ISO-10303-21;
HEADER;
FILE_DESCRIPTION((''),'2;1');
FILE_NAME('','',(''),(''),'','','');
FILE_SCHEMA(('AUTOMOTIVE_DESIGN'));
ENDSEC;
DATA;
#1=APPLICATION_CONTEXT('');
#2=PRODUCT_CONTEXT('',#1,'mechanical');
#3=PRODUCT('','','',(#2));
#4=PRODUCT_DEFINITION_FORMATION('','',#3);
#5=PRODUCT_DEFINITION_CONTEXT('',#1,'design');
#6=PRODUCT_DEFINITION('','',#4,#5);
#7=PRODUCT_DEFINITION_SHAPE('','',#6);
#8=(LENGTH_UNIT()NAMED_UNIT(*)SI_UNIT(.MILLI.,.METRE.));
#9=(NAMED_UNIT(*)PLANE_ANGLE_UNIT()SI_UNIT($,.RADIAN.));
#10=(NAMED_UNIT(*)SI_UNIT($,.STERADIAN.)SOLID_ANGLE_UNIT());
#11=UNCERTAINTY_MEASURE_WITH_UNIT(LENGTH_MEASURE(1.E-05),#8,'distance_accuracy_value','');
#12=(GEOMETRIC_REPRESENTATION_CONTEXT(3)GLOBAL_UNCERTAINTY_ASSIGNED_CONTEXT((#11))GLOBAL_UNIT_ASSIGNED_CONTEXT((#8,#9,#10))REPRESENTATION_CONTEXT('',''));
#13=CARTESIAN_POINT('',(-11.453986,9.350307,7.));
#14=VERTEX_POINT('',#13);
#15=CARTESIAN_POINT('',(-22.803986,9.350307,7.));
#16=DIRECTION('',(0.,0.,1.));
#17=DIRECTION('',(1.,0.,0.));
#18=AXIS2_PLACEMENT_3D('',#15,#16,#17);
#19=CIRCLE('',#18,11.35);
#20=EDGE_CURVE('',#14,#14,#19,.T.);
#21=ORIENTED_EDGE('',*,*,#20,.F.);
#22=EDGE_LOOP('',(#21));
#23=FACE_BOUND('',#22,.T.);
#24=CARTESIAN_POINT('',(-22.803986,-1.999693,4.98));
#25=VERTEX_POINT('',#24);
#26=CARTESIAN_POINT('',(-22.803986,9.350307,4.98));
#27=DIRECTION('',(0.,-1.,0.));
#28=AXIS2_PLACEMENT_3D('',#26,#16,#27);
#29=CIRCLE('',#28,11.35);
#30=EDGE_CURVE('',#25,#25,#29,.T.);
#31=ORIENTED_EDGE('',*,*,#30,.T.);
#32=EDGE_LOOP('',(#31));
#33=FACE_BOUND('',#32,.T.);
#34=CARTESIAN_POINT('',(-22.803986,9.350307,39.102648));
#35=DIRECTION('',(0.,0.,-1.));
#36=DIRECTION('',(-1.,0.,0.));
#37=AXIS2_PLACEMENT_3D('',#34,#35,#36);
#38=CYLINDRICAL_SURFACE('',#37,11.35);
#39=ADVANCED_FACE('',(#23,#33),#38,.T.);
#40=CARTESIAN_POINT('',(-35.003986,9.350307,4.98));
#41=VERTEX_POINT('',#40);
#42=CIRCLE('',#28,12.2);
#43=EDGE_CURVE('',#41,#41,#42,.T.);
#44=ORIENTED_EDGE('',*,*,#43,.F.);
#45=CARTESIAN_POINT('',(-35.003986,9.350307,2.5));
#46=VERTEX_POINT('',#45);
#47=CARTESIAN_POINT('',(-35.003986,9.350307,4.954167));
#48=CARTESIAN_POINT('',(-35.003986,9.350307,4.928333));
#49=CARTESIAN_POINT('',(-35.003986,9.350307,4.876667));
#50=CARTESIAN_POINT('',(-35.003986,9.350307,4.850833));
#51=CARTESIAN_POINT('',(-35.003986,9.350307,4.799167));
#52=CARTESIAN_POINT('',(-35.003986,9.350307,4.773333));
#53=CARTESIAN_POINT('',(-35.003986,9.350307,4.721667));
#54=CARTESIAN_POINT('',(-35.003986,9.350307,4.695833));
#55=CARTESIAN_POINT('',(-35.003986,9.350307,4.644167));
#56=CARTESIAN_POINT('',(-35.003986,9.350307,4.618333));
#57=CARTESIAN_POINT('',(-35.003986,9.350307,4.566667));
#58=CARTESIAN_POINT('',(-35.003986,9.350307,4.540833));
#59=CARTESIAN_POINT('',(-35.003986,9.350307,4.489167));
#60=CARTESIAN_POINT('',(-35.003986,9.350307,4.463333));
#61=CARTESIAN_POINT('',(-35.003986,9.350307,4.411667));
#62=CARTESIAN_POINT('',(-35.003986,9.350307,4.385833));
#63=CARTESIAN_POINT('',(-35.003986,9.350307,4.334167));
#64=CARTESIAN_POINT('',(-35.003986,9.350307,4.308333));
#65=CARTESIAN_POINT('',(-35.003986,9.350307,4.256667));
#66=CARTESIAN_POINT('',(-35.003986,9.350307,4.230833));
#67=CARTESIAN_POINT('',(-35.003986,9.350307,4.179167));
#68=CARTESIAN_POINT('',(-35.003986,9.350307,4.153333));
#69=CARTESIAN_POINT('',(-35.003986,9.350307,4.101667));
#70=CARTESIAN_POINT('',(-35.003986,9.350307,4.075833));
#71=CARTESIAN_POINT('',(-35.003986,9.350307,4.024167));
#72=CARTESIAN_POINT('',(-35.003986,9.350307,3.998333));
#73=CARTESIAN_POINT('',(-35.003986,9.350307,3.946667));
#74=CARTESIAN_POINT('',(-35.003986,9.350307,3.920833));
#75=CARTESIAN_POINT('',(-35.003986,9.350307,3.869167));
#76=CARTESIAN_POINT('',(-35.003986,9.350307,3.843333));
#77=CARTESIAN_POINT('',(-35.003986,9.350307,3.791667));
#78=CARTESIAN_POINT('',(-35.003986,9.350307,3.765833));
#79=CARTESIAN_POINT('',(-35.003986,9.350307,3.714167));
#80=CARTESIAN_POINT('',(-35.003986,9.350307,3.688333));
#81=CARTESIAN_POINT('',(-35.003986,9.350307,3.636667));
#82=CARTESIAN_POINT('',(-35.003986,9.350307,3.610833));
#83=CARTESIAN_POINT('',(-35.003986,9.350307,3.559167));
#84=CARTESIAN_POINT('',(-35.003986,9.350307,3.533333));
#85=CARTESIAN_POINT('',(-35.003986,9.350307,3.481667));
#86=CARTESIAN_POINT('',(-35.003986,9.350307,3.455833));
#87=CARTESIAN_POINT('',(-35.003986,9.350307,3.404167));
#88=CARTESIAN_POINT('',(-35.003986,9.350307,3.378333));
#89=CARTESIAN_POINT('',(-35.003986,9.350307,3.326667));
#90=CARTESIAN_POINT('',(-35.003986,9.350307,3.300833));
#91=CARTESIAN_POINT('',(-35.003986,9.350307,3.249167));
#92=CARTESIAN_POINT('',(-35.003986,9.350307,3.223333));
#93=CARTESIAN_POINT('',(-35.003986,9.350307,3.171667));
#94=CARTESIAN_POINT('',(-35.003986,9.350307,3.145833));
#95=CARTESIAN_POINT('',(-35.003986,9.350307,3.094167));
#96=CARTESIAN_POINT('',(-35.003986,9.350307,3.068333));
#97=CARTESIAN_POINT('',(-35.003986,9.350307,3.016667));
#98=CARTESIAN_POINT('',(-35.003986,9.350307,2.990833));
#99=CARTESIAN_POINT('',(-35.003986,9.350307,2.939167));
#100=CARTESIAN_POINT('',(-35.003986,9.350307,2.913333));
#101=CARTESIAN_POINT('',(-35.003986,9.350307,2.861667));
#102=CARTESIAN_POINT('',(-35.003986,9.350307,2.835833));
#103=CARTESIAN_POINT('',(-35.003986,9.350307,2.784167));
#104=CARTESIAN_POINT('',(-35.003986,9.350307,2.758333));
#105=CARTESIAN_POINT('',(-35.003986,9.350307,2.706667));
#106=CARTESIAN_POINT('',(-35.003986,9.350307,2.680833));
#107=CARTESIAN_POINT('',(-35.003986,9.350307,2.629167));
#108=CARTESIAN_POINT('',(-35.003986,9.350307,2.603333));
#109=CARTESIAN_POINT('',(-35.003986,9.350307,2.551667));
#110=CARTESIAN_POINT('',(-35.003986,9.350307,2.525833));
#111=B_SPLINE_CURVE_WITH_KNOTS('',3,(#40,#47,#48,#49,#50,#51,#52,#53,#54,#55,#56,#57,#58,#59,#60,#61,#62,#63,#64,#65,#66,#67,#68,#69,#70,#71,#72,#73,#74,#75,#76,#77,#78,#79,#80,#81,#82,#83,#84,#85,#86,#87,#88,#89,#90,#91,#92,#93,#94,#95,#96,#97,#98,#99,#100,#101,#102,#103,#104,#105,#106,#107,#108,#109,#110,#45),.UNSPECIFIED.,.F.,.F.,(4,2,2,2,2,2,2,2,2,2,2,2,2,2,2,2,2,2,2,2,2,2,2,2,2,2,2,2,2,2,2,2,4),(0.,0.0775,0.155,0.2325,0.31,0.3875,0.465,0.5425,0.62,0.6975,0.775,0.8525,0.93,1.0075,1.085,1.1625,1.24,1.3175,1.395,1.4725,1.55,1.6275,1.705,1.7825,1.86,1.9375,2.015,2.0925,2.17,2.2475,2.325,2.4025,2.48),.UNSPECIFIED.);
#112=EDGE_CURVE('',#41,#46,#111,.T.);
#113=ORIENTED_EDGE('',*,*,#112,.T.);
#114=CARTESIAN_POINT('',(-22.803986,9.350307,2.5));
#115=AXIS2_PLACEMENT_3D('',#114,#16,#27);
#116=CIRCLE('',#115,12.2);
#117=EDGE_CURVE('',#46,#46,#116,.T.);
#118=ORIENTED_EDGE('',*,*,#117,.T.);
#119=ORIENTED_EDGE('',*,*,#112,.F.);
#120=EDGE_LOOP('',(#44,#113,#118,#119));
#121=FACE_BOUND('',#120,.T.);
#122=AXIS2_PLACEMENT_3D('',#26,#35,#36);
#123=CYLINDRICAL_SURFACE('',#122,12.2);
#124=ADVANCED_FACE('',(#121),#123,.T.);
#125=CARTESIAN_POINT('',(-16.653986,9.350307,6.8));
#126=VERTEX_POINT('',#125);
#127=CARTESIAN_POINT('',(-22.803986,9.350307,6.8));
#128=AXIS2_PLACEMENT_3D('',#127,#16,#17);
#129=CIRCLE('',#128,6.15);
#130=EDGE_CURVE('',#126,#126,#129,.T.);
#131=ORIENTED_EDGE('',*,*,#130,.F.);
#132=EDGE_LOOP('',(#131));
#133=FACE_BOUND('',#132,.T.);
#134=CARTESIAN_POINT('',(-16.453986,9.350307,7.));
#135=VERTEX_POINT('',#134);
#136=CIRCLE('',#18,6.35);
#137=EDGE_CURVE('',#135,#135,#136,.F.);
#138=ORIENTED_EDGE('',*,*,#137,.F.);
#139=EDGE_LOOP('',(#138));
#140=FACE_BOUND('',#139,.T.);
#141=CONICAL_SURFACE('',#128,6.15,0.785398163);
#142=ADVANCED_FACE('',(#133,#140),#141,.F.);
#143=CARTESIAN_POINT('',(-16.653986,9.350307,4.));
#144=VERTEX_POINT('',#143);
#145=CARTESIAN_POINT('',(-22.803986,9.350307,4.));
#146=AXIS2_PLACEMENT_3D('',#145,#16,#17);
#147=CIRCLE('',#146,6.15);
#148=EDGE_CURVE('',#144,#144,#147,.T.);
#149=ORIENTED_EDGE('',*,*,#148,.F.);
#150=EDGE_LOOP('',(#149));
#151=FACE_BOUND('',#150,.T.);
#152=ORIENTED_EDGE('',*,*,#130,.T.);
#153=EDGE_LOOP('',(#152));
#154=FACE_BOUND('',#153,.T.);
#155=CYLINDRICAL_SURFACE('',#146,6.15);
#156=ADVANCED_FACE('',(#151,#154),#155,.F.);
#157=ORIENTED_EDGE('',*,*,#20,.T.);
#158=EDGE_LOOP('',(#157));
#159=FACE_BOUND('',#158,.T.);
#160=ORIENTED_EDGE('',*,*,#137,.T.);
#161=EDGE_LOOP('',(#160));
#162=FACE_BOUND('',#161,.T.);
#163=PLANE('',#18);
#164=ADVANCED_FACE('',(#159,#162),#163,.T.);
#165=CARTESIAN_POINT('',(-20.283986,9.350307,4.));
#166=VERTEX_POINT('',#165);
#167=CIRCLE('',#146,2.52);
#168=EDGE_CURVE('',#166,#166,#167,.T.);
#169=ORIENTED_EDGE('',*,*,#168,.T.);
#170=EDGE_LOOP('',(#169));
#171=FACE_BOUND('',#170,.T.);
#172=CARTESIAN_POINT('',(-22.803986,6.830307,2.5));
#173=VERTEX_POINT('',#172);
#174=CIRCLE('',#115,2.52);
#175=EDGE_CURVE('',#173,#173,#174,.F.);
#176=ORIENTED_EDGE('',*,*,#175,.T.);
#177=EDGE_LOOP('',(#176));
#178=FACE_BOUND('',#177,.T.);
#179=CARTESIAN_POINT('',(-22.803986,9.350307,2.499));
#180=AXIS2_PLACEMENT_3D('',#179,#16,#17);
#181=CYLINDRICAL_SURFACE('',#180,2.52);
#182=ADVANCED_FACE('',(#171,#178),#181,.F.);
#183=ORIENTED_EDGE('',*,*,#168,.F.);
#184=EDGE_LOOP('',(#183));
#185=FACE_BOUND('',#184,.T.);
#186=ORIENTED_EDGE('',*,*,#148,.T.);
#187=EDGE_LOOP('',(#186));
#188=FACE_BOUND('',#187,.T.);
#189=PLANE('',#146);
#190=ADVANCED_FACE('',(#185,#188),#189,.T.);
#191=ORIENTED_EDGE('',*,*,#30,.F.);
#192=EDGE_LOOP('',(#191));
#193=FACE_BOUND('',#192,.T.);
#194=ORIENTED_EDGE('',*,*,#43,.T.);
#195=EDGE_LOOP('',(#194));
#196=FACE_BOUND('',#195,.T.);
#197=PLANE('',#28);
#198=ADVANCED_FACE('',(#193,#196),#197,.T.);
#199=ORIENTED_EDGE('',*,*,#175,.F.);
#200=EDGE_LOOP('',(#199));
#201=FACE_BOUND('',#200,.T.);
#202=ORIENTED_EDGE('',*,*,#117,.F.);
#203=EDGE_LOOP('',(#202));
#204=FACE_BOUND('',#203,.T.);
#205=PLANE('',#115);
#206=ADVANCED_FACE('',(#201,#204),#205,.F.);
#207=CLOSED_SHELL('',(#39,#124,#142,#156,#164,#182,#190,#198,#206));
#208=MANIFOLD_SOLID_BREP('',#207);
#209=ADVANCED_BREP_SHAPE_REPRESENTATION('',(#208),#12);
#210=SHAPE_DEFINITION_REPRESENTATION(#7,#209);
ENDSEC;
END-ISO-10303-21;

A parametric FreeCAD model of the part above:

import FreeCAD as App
import Part
import Sketcher
Q = App.Units.Quantity


def edges_at(feature, points):
    """Names of the edges that pass closest to the given points."""
    edges = feature.Shape.Edges
    near = lambda p: min(range(len(edges)), key=lambda i: edges[i].distToShape(Part.Vertex(*p))[0])
    return sorted({f"Edge{near(p) + 1}" for p in points})

doc = App.newDocument("Part")
body = doc.addObject("PartDesign::Body", "Body")

# Sketch on XY plane
sketch1 = body.newObject("Sketcher::SketchObject", "Sketch")
sketch1.AttachmentSupport = (doc.getObject("XY_Plane"), [""])
sketch1.MapMode = "FlatFace"
sketch1.AttachmentOffset = App.Placement(App.Vector(0, 0, 2.5), App.Rotation())
sketch1.addGeometry(Part.Circle(App.Vector(-23, 9, 0), App.Vector(0, 0, 1), 12), False)
sketch1.addConstraint(Sketcher.Constraint("Diameter", 0, Q("24.4 mm")))
sketch1.addConstraint(Sketcher.Constraint("DistanceX", 0, 3, -1, 1, Q("22.803986 mm")))
sketch1.addConstraint(Sketcher.Constraint("DistanceY", -1, 1, 0, 3, Q("9.350307 mm")))
pad1 = body.newObject("PartDesign::Pad", "Pad")
pad1.Profile = sketch1
pad1.Length = 2.48

# Sketch on XY plane
sketch2 = body.newObject("Sketcher::SketchObject", "Sketch001")
sketch2.AttachmentSupport = (doc.getObject("XY_Plane"), [""])
sketch2.MapMode = "FlatFace"
sketch2.AttachmentOffset = App.Placement(App.Vector(0, 0, 4.98), App.Rotation())
sketch2.addGeometry(Part.Circle(App.Vector(-23, 9, 0), App.Vector(0, 0, 1), 11), False)
sketch2.addConstraint(Sketcher.Constraint("Diameter", 0, Q("22.7 mm")))
sketch2.addConstraint(Sketcher.Constraint("DistanceX", 0, 3, -1, 1, Q("22.803986 mm")))
sketch2.addConstraint(Sketcher.Constraint("DistanceY", -1, 1, 0, 3, Q("9.350307 mm")))
pad2 = body.newObject("PartDesign::Pad", "Pad001")
pad2.Profile = sketch2
pad2.Length = 2.02

# Sketch on XY plane
sketch3 = body.newObject("Sketcher::SketchObject", "Sketch002")
sketch3.AttachmentSupport = (doc.getObject("XY_Plane"), [""])
sketch3.MapMode = "FlatFace"
sketch3.AttachmentOffset = App.Placement(App.Vector(0, 0, 7), App.Rotation())
sketch3.addGeometry(Part.Circle(App.Vector(-23, 9, 0), App.Vector(0, 0, 1), 6), False)
sketch3.addConstraint(Sketcher.Constraint("Diameter", 0, Q("12.3 mm")))
sketch3.addConstraint(Sketcher.Constraint("DistanceX", 0, 3, -1, 1, Q("22.803986 mm")))
sketch3.addConstraint(Sketcher.Constraint("DistanceY", -1, 1, 0, 3, Q("9.350307 mm")))
pocket1 = body.newObject("PartDesign::Pocket", "Pocket")
pocket1.Profile = sketch3
pocket1.Length = 3
doc.recompute()

chamfer = body.newObject("PartDesign::Chamfer", "Chamfer")
chamfer.Base = (pocket1, edges_at(pocket1, [(-28.954, 9.35, 7)]))
chamfer.Size = 0.2

# Sketch on XY plane
sketch4 = body.newObject("Sketcher::SketchObject", "Sketch003")
sketch4.AttachmentSupport = (doc.getObject("XY_Plane"), [""])
sketch4.MapMode = "FlatFace"
sketch4.AttachmentOffset = App.Placement(App.Vector(0, 0, 2.5), App.Rotation())
sketch4.addGeometry(Part.Circle(App.Vector(-22.8, 9.4, 0), App.Vector(0, 0, 1), 2.5), False)
sketch4.addConstraint(Sketcher.Constraint("Diameter", 0, Q("5.04 mm")))
sketch4.addConstraint(Sketcher.Constraint("DistanceX", 0, 3, -1, 1, Q("22.803986 mm")))
sketch4.addConstraint(Sketcher.Constraint("DistanceY", -1, 1, 0, 3, Q("9.350307 mm")))
pocket2 = body.newObject("PartDesign::Pocket", "Pocket001")
pocket2.Profile = sketch4
pocket2.Length = 1.5
pocket2.Reversed = True

doc.recompute()
